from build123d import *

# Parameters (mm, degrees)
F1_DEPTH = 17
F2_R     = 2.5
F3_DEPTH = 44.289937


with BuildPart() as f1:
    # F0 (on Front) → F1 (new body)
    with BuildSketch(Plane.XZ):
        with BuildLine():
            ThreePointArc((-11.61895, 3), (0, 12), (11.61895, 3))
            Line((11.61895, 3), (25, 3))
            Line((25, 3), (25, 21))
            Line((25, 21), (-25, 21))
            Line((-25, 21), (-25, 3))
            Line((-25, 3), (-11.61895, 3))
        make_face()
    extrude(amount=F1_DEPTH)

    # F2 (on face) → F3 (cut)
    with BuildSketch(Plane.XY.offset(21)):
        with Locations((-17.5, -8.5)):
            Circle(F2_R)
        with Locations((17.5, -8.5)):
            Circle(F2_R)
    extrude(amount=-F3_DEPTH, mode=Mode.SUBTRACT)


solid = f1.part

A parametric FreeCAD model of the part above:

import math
import FreeCAD as App
import Part
import Sketcher

doc = App.newDocument("Part")
body = doc.addObject("PartDesign::Body", "Body")

# Sketch on XZ plane
sketch1 = doc.addObject("Sketcher::SketchObject", "Sketch")
body.addObject(sketch1)
sketch1.AttachmentSupport = (doc.XZ_Plane, [""])
sketch1.MapMode = "FlatFace"
sketch1.addGeometry([
    Part.ArcOfCircle(Part.Circle(App.Vector(0, 0, 0), App.Vector(0, 0, 1), 12), math.radians(14), math.radians(166)),  # 0
    Part.LineSegment(App.Vector(12, 3, 0), App.Vector(25, 3, 0)),  # 1
    Part.LineSegment(App.Vector(25, 3, 0), App.Vector(25, 21, 0)),  # 2
    Part.LineSegment(App.Vector(25, 21, 0), App.Vector(-25, 21, 0)),  # 3
    Part.LineSegment(App.Vector(-25, 21, 0), App.Vector(-25, 3, 0)),  # 4
    Part.LineSegment(App.Vector(-25, 3, 0), App.Vector(-12, 3, 0)),  # 5
], False)
sketch1.addConstraint([
    Sketcher.Constraint("Coincident", 0, 1, 1, 1),
    Sketcher.Constraint("Coincident", 1, 2, 2, 1),
    Sketcher.Constraint("Coincident", 2, 2, 3, 1),
    Sketcher.Constraint("Coincident", 3, 2, 4, 1),
    Sketcher.Constraint("Coincident", 4, 2, 5, 1),
    Sketcher.Constraint("Coincident", 5, 2, 0, 2),
    Sketcher.Constraint("Horizontal", 1),
    Sketcher.Constraint("Vertical", 2),
    Sketcher.Constraint("Horizontal", 3),
    Sketcher.Constraint("Vertical", 4),
    Sketcher.Constraint("Horizontal", 5),
    Sketcher.Constraint("Coincident", 0, 3, -1, 1),
    Sketcher.Constraint("Symmetric", 1, 2, 4, 2, -2),
    Sketcher.Constraint("Radius", 0, 12.0),
    Sketcher.Constraint("DistanceX", 3, 2, 3, 1, 50.0),
    Sketcher.Constraint("DistanceY", 2, 1, 2, 2, 18.0),
    Sketcher.Constraint("DistanceY", -1, 1, 0, 1, 3.0),
])
pad1 = doc.addObject("PartDesign::Pad", "Pad")
body.addObject(pad1)
pad1.Profile = sketch1
pad1.Length = 17

# Sketch on XY plane
sketch2 = doc.addObject("Sketcher::SketchObject", "Sketch001")
body.addObject(sketch2)
sketch2.AttachmentSupport = (doc.XY_Plane, [""])
sketch2.MapMode = "FlatFace"
sketch2.AttachmentOffset = App.Placement(App.Vector(0, 0, 21), App.Rotation())
sketch2.addGeometry([
    Part.Circle(App.Vector(-17.5, -8.5, 0), App.Vector(0, 0, 1), 2.5),
    Part.Circle(App.Vector(17.5, -8.5, 0), App.Vector(0, 0, 1), 2.5),
], False)
sketch2.addConstraint([
    Sketcher.Constraint("Equal", 0, 1),
    Sketcher.Constraint("Symmetric", 0, 3, 1, 3, -2),
    Sketcher.Constraint("Diameter", 0, 5.0),
    Sketcher.Constraint("DistanceX", 0, 3, 1, 3, 35.0),
    Sketcher.Constraint("DistanceY", 0, 3, -1, 1, 8.5),
])
pocket1 = doc.addObject("PartDesign::Pocket", "Pocket")
body.addObject(pocket1)
pocket1.Profile = sketch2
pocket1.Length = 44.289937

doc.recompute()
